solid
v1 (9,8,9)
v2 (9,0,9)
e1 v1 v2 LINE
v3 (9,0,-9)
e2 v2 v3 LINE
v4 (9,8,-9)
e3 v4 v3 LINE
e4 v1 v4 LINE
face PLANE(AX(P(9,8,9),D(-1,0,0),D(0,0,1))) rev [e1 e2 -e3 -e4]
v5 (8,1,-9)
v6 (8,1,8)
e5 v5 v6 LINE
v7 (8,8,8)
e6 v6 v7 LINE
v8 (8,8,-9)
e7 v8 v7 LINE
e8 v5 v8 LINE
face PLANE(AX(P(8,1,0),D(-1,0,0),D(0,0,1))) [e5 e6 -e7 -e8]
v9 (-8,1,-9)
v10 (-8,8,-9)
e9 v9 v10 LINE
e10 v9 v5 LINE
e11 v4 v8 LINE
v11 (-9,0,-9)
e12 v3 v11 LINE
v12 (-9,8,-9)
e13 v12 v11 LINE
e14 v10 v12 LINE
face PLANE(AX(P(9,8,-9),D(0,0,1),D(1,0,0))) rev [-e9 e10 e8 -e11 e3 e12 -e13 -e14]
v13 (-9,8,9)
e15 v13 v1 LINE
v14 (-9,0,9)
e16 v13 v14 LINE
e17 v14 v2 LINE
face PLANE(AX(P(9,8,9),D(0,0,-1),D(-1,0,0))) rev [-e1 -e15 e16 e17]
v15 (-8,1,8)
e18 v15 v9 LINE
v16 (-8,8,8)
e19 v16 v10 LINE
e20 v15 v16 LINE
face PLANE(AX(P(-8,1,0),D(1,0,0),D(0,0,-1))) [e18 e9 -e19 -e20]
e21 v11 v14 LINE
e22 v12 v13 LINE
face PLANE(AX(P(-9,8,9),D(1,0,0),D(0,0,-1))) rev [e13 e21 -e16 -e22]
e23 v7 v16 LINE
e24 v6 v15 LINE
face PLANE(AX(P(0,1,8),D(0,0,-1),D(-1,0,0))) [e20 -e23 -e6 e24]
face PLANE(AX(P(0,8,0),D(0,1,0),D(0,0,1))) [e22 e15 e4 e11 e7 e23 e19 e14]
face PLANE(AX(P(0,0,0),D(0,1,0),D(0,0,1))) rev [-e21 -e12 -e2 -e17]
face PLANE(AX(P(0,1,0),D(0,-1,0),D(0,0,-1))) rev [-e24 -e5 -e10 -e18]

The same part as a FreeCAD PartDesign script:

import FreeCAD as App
import Part
import Sketcher

doc = App.newDocument("Part")
body = doc.addObject("PartDesign::Body", "Body")

# Sketch on XZ plane
sketch1 = body.newObject("Sketcher::SketchObject", "Sketch")
sketch1.AttachmentSupport = (doc.getObject("XZ_Plane"), [""])
sketch1.MapMode = "FlatFace"
sketch1.addGeometry([
    Part.LineSegment(App.Vector(-9, -9, 0), App.Vector(-9, 9, 0)),
    Part.LineSegment(App.Vector(-9, 9, 0), App.Vector(9, 9, 0)),
    Part.LineSegment(App.Vector(9, 9, 0), App.Vector(9, -9, 0)),
    Part.LineSegment(App.Vector(9, -9, 0), App.Vector(-9, -9, 0)),
], False)
sketch1.addConstraint([
    Sketcher.Constraint("Coincident", 0, 2, 1, 1),
    Sketcher.Constraint("Coincident", 1, 2, 2, 1),
    Sketcher.Constraint("Coincident", 2, 2, 3, 1),
    Sketcher.Constraint("Coincident", 3, 2, 0, 1),
    Sketcher.Constraint("Vertical", 0),
    Sketcher.Constraint("Horizontal", 1),
    Sketcher.Constraint("Vertical", 2),
    Sketcher.Constraint("Horizontal", 3),
    Sketcher.Constraint("Symmetric", 0, 2, 2, 2, -1, 1),
    Sketcher.Constraint("Equal", 3, 0),
    Sketcher.Constraint("DistanceX", 1, 1, 1, 2, 18.0),
])
pad1 = body.newObject("PartDesign::Pad", "Pad")
pad1.Profile = sketch1
pad1.Length = 8
pad1.Reversed = True

# Sketch on XZ plane
sketch2 = body.newObject("Sketcher::SketchObject", "Sketch001")
sketch2.AttachmentSupport = (doc.getObject("XZ_Plane"), [""])
sketch2.MapMode = "FlatFace"
sketch2.AttachmentOffset = App.Placement(App.Vector(0, 0, -8), App.Rotation())
sketch2.addGeometry([
    Part.LineSegment(App.Vector(-8, -9, 0), App.Vector(-8, 8, 0)),
    Part.LineSegment(App.Vector(-8, 8, 0), App.Vector(8, 8, 0)),
    Part.LineSegment(App.Vector(8, 8, 0), App.Vector(8, -9, 0)),
    Part.LineSegment(App.Vector(8, -9, 0), App.Vector(-8, -9, 0)),
], False)
sketch2.addConstraint([
    Sketcher.Constraint("Coincident", 0, 2, 1, 1),
    Sketcher.Constraint("Coincident", 1, 2, 2, 1),
    Sketcher.Constraint("Coincident", 2, 2, 3, 1),
    Sketcher.Constraint("Coincident", 3, 2, 0, 1),
    Sketcher.Constraint("Vertical", 0),
    Sketcher.Constraint("Horizontal", 1),
    Sketcher.Constraint("Vertical", 2),
    Sketcher.Constraint("Horizontal", 3),
    Sketcher.Constraint("DistanceX", 1, 1, 1, 2, 16.0),
    Sketcher.Constraint("DistanceY", 0, 1, 0, 2, 17.0),
    Sketcher.Constraint("DistanceX", 0, 2, -1, 1, 8.0),
    Sketcher.Constraint("DistanceY", -1, 1, 0, 2, 8.0),
])
pocket1 = body.newObject("PartDesign::Pocket", "Pocket")
pocket1.Profile = sketch2
pocket1.Length = 7
pocket1.Reversed = True
body2 = doc.addObject("PartDesign::Body", "Body001")

# Sketch on XZ plane
sketch3 = body2.newObject("Sketcher::SketchObject", "Sketch002")
sketch3.AttachmentSupport = (doc.getObject("XZ_Plane001"), [""])
sketch3.MapMode = "FlatFace"
sketch3.AttachmentOffset = App.Placement(App.Vector(0, 0, -8), App.Rotation())
sketch3.addGeometry([
    Part.LineSegment(App.Vector(-9, -9, 0), App.Vector(-9, 9, 0)),
    Part.LineSegment(App.Vector(-9, 9, 0), App.Vector(9, 9, 0)),
    Part.LineSegment(App.Vector(9, 9, 0), App.Vector(9, -9, 0)),
    Part.LineSegment(App.Vector(9, -9, 0), App.Vector(-9, -9, 0)),
], False)
sketch3.addConstraint([
    Sketcher.Constraint("Coincident", 0, 2, 1, 1),
    Sketcher.Constraint("Coincident", 1, 2, 2, 1),
    Sketcher.Constraint("Coincident", 2, 2, 3, 1),
    Sketcher.Constraint("Coincident", 3, 2, 0, 1),
    Sketcher.Constraint("Vertical", 0),
    Sketcher.Constraint("Horizontal", 1),
    Sketcher.Constraint("Vertical", 2),
    Sketcher.Constraint("Horizontal", 3),
    Sketcher.Constraint("Symmetric", 0, 2, 2, 2, -1, 1),
    Sketcher.Constraint("Equal", 3, 0),
    Sketcher.Constraint("DistanceX", 1, 1, 1, 2, 18.0),
])
pad2 = body2.newObject("PartDesign::Pad", "Pad001")
pad2.Profile = sketch3
pad2.Length = 1
pad2.Reversed = True

# Sketch on XZ plane
sketch4 = body2.newObject("Sketcher::SketchObject", "Sketch003")
sketch4.AttachmentSupport = (doc.getObject("XZ_Plane001"), [""])
sketch4.MapMode = "FlatFace"
sketch4.AttachmentOffset = App.Placement(App.Vector(0, 0, -9), App.Rotation())
sketch4.addGeometry(Part.Circle(App.Vector(0, 0, 0), App.Vector(0, 0, 1), 6), False)
sketch4.addConstraint([
    Sketcher.Constraint("PointOnObject", 0, 3, -2),
    Sketcher.Constraint("Diameter", 0, 13.0),
    Sketcher.Constraint("DistanceY", -1, 1, 0, 3, 0.5),
])
pocket2 = body2.newObject("PartDesign::Pocket", "Pocket001")
pocket2.Profile = sketch4
pocket2.Length = 1
pocket2.Reversed = True

# Sketch on XZ plane
sketch5 = body2.newObject("Sketcher::SketchObject", "Sketch004")
sketch5.AttachmentSupport = (doc.getObject("XZ_Plane001"), [""])
sketch5.MapMode = "FlatFace"
sketch5.AttachmentOffset = App.Placement(App.Vector(0, 0, -9), App.Rotation())
sketch5.addGeometry([
    Part.LineSegment(App.Vector(-9, -9, 0), App.Vector(-9, 9, 0)),
    Part.LineSegment(App.Vector(-9, 9, 0), App.Vector(9, 9, 0)),
    Part.LineSegment(App.Vector(9, 9, 0), App.Vector(9, -9, 0)),
    Part.LineSegment(App.Vector(9, -9, 0), App.Vector(-9, -9, 0)),
], False)
sketch5.addConstraint([
    Sketcher.Constraint("Coincident", 0, 2, 1, 1),
    Sketcher.Constraint("Coincident", 1, 2, 2, 1),
    Sketcher.Constraint("Coincident", 2, 2, 3, 1),
    Sketcher.Constraint("Coincident", 3, 2, 0, 1),
    Sketcher.Constraint("Vertical", 0),
    Sketcher.Constraint("Horizontal", 1),
    Sketcher.Constraint("Vertical", 2),
    Sketcher.Constraint("Horizontal", 3),
    Sketcher.Constraint("Symmetric", 0, 2, 2, 2, -1, 1),
    Sketcher.Constraint("Equal", 3, 0),
    Sketcher.Constraint("DistanceX", 1, 1, 1, 2, 18.0),
])
pocket3 = body2.newObject("PartDesign::Pocket", "Pocket002")
pocket3.Profile = sketch5
pocket3.Length = 1
pocket3.Reversed = True

doc.recompute()
